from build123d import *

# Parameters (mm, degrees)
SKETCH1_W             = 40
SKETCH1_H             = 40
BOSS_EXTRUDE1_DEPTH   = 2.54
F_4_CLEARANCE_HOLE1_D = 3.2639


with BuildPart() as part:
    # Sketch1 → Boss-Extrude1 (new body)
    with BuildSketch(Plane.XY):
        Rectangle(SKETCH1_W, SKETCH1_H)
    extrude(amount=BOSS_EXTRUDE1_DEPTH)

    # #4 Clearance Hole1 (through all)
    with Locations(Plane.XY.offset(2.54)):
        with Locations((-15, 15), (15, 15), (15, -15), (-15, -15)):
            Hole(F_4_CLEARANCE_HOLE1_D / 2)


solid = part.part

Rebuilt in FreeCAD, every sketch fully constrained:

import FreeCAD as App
import Part
import Sketcher
from FreeCAD import Vector

doc = App.newDocument("Part")
body = doc.addObject("PartDesign::Body", "Body")

# Sketch on XY plane
sketch1 = body.newObject("Sketcher::SketchObject", "Sketch")
sketch1.AttachmentSupport = (doc.getObject("XY_Plane"), [""])
sketch1.MapMode = "FlatFace"
sketch1.addGeometry(Part.LineSegment(Vector(-20, 20, 0), Vector(-20, -20, 0)), False)
sketch1.addGeometry(Part.LineSegment(Vector(-20, -20, 0), Vector(20, -20, 0)), False)
sketch1.addGeometry(Part.LineSegment(Vector(20, -20, 0), Vector(20, 20, 0)), False)
sketch1.addGeometry(Part.LineSegment(Vector(20, 20, 0), Vector(-20, 20, 0)), False)
sketch1.addConstraint(Sketcher.Constraint("Coincident", 0, 2, 1, 1))
sketch1.addConstraint(Sketcher.Constraint("Coincident", 1, 2, 2, 1))
sketch1.addConstraint(Sketcher.Constraint("Coincident", 2, 2, 3, 1))
sketch1.addConstraint(Sketcher.Constraint("Coincident", 3, 2, 0, 1))
sketch1.addConstraint(Sketcher.Constraint("Vertical", 0))
sketch1.addConstraint(Sketcher.Constraint("Horizontal", 1))
sketch1.addConstraint(Sketcher.Constraint("Vertical", 2))
sketch1.addConstraint(Sketcher.Constraint("Horizontal", 3))
sketch1.addConstraint(Sketcher.Constraint("Symmetric", 0, 2, 2, 2, -1, 1))
sketch1.addConstraint(Sketcher.Constraint("Equal", 3, 0))
sketch1.addConstraint(Sketcher.Constraint("DistanceX", 1, 1, 1, 2, 40.0))
pad1 = body.newObject("PartDesign::Pad", "Pad")
pad1.Profile = sketch1
pad1.Length = 2.54

# Sketch on XY plane
sketch2 = body.newObject("Sketcher::SketchObject", "Sketch001")
sketch2.AttachmentSupport = (doc.getObject("XY_Plane"), [""])
sketch2.MapMode = "FlatFace"
sketch2.AttachmentOffset = App.Placement(Vector(0, 0, 2.54), App.Rotation())
sketch2.addGeometry(Part.Circle(Vector(-15, 15, 0), Vector(0, 0, 1), 1.63195), False)
sketch2.addGeometry(Part.Circle(Vector(15, 15, 0), Vector(0, 0, 1), 1.63195), False)
sketch2.addGeometry(Part.Circle(Vector(15, -15, 0), Vector(0, 0, 1), 1.63195), False)
sketch2.addGeometry(Part.Circle(Vector(-15, -15, 0), Vector(0, 0, 1), 1.63195), False)
sketch2.addConstraint(Sketcher.Constraint("Equal", 0, 1))
sketch2.addConstraint(Sketcher.Constraint("Equal", 1, 2))
sketch2.addConstraint(Sketcher.Constraint("Equal", 2, 3))
sketch2.addConstraint(Sketcher.Constraint("Symmetric", 0, 3, 2, 3, -1, 1))
sketch2.addConstraint(Sketcher.Constraint("Symmetric", 1, 3, 3, 3, -1, 1))
sketch2.addConstraint(Sketcher.Constraint("Symmetric", 0, 3, 1, 3, -2))
sketch2.addConstraint(Sketcher.Constraint("DistanceX", 0, 3, -1, 1, 15.0))
sketch2.addConstraint(Sketcher.Constraint("DistanceY", -1, 1, 0, 3, 15.0))
sketch2.addConstraint(Sketcher.Constraint("Diameter", 0, 3.2639))
doc.recompute()
hole = body.newObject("PartDesign::Hole", "Hole")
hole.Profile = sketch2
hole.ThreadType = "None"
hole.Diameter = 3.2639
hole.DepthType = "ThroughAll"

doc.recompute()
